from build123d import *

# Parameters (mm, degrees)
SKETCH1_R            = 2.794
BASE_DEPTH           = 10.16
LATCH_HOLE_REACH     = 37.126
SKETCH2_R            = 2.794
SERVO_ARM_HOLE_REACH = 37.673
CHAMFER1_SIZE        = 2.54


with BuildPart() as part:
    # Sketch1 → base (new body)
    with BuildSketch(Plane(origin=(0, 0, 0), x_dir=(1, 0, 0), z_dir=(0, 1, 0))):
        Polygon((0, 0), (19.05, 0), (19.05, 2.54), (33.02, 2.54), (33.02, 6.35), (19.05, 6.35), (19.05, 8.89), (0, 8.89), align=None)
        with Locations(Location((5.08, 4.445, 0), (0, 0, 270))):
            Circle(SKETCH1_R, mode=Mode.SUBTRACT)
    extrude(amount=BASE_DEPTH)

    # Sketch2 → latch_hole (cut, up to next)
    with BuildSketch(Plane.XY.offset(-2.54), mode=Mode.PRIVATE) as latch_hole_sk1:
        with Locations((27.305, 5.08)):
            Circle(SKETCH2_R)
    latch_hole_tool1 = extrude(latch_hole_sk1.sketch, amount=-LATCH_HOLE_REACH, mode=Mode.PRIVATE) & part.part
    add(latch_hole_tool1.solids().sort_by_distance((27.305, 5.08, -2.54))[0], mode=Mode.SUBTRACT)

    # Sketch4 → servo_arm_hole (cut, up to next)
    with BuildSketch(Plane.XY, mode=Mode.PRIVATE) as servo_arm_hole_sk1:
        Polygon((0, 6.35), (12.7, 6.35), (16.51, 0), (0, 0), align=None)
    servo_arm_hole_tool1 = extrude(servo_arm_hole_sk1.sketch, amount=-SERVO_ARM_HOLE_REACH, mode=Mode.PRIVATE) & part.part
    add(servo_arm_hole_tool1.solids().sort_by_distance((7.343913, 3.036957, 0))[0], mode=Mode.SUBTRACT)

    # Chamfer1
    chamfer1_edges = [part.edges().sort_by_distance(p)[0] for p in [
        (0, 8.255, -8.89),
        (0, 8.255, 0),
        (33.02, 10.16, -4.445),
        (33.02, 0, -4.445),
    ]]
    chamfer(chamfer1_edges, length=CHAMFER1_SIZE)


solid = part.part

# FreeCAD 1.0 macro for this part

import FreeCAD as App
import Part
import Sketcher
from FreeCAD import Vector
Q = App.Units.Quantity


def edges_at(feature, points):
    """Names of the edges that pass closest to the given points."""
    edges = feature.Shape.Edges
    near = lambda p: min(range(len(edges)), key=lambda i: edges[i].distToShape(Part.Vertex(*p))[0])
    return sorted({f"Edge{near(p) + 1}" for p in points})

doc = App.newDocument("Part")
params = doc.addObject("Spreadsheet::Sheet", "Params")
for row, (alias, value) in enumerate([
    ("sketch1_diameter", "0.22 in"),
    ("sketch1_height", "0.1 in"),
    ("sketch1_width", "0.75 in"),
    ("sketch1_width2", "0.55 in"),
    ("sketch1_height2", "0.15 in"),
    ("pad1_length", "0.4 in"),
    ("sketch2_diameter", "0.22 in"),
    ("sketch3_width", "0.5 in"),
    ("sketch3_width2", "0.65 in"),
    ("sketch3_height", "0.25 in"),
    ("pocket2_length", "0.35 in"),
    ("chamfer_size", "0.1 in"),
], start=1):
    params.set(f"A{row}", alias)
    params.set(f"B{row}", "=" + value)
    params.setAlias(f"B{row}", alias)

body = doc.addObject("PartDesign::Body", "Body")

# Sketch on XZ plane
sketch1 = body.newObject("Sketcher::SketchObject", "Sketch")
sketch1.AttachmentSupport = (doc.getObject("XZ_Plane"), [""])
sketch1.MapMode = "FlatFace"
sketch1.addGeometry([
    Part.LineSegment(Vector(0, 0, 0), Vector(19.1, 0, 0)),  # 0
    Part.LineSegment(Vector(19.1, 0, 0), Vector(19.1, -2.5, 0)),  # 1
    Part.LineSegment(Vector(19.1, -2.5, 0), Vector(33, -2.5, 0)),  # 2
    Part.LineSegment(Vector(33, -2.5, 0), Vector(33, -6.3, 0)),  # 3
    Part.LineSegment(Vector(33, -6.3, 0), Vector(19.1, -6.3, 0)),  # 4
    Part.LineSegment(Vector(19.1, -6.3, 0), Vector(19.1, -8.9, 0)),  # 5
    Part.LineSegment(Vector(19.1, -8.9, 0), Vector(0, -8.9, 0)),  # 6
    Part.LineSegment(Vector(0, -8.9, 0), Vector(0, 0, 0)),  # 7
    Part.Circle(Vector(5.1, -4.4, 0), Vector(0, 0, 1), 2.8),  # 8
], False)
sketch1.addConstraint([
    Sketcher.Constraint("Coincident", 0, 2, 1, 1),
    Sketcher.Constraint("Coincident", 1, 2, 2, 1),
    Sketcher.Constraint("Coincident", 2, 2, 3, 1),
    Sketcher.Constraint("Coincident", 3, 2, 4, 1),
    Sketcher.Constraint("Coincident", 4, 2, 5, 1),
    Sketcher.Constraint("Coincident", 5, 2, 6, 1),
    Sketcher.Constraint("Coincident", 6, 2, 7, 1),
    Sketcher.Constraint("Coincident", 7, 2, 0, 1),
    Sketcher.Constraint("Horizontal", 0),
    Sketcher.Constraint("Vertical", 1),
    Sketcher.Constraint("Horizontal", 2),
    Sketcher.Constraint("Vertical", 3),
    Sketcher.Constraint("Horizontal", 4),
    Sketcher.Constraint("Vertical", 5),
    Sketcher.Constraint("Horizontal", 6),
    Sketcher.Constraint("Vertical", 7),
    Sketcher.Constraint("Coincident", 7, 2, -1, 1),
    Sketcher.Constraint("Vertical", 1, 2, 4, 2),
    Sketcher.Constraint("Equal", 1, 5),
    Sketcher.Constraint("Diameter", 8, Q("0.22 in")),
    Sketcher.Constraint("DistanceY", 1, 2, 1, 1, Q("0.1 in")),
    Sketcher.Constraint("DistanceX", 0, 1, 0, 2, Q("0.75 in")),
    Sketcher.Constraint("DistanceX", 2, 1, 2, 2, Q("0.55 in")),
    Sketcher.Constraint("DistanceY", 3, 2, 3, 1, Q("0.15 in")),
    Sketcher.Constraint("DistanceX", -1, 1, 8, 3, Q("0.2 in")),
    Sketcher.Constraint("DistanceY", 8, 3, -1, 1, Q("0.175 in")),
])
sketch1.setExpression("Constraints[19]", "Params.sketch1_diameter")
sketch1.setExpression("Constraints[20]", "Params.sketch1_height")
sketch1.setExpression("Constraints[21]", "Params.sketch1_width")
sketch1.setExpression("Constraints[22]", "Params.sketch1_width2")
sketch1.setExpression("Constraints[23]", "Params.sketch1_height2")
pad1 = body.newObject("PartDesign::Pad", "Pad")
pad1.Profile = sketch1
pad1.setExpression("Length", "Params.pad1_length")
pad1.Reversed = True

# Sketch on XY plane
sketch2 = body.newObject("Sketcher::SketchObject", "Sketch001")
sketch2.AttachmentSupport = (doc.getObject("XY_Plane"), [""])
sketch2.MapMode = "FlatFace"
sketch2.AttachmentOffset = App.Placement(Vector(0, 0, -0.1 * 25.4), App.Rotation())
sketch2.addGeometry(Part.Circle(Vector(27.3, 5.1, 0), Vector(0, 0, 1), 2.8), False)
sketch2.addConstraint([
    Sketcher.Constraint("Diameter", 0, Q("0.22 in")),
    Sketcher.Constraint("DistanceY", -1, 1, 0, 3, Q("0.2 in")),
    Sketcher.Constraint("DistanceX", -1, 1, 0, 3, Q("1.075 in")),
])
sketch2.setExpression("Constraints[0]", "Params.sketch2_diameter")
pocket1 = body.newObject("PartDesign::Pocket", "Pocket")
pocket1.Profile = sketch2
pocket1.Type = "UpToFirst"

# Sketch on XY plane
sketch3 = body.newObject("Sketcher::SketchObject", "Sketch002")
sketch3.AttachmentSupport = (doc.getObject("XY_Plane"), [""])
sketch3.MapMode = "FlatFace"
sketch3.addGeometry([
    Part.LineSegment(Vector(13, 6, 0), Vector(0, 6, 0)),
    Part.LineSegment(Vector(0, 6, 0), Vector(0, 0, 0)),
    Part.LineSegment(Vector(0, 0, 0), Vector(17, 0, 0)),
    Part.LineSegment(Vector(17, 0, 0), Vector(13, 6, 0)),
], False)
sketch3.addConstraint([
    Sketcher.Constraint("Coincident", 0, 2, 1, 1),
    Sketcher.Constraint("Coincident", 1, 2, 2, 1),
    Sketcher.Constraint("Coincident", 2, 2, 3, 1),
    Sketcher.Constraint("Coincident", 3, 2, 0, 1),
    Sketcher.Constraint("Horizontal", 0),
    Sketcher.Constraint("Vertical", 1),
    Sketcher.Constraint("Horizontal", 2),
    Sketcher.Constraint("Coincident", 1, 2, -1, 1),
    Sketcher.Constraint("DistanceX", 0, 2, 0, 1, Q("0.5 in")),
    Sketcher.Constraint("DistanceX", 2, 1, 2, 2, Q("0.65 in")),
    Sketcher.Constraint("DistanceY", 1, 2, 1, 1, Q("0.25 in")),
])
sketch3.setExpression("Constraints[8]", "Params.sketch3_width")
sketch3.setExpression("Constraints[9]", "Params.sketch3_width2")
sketch3.setExpression("Constraints[10]", "Params.sketch3_height")
pocket2 = body.newObject("PartDesign::Pocket", "Pocket001")
pocket2.Profile = sketch3
pocket2.setExpression("Length", "Params.pocket2_length")
doc.recompute()

chamfer = body.newObject("PartDesign::Chamfer", "Chamfer")
chamfer.Base = (pocket2, edges_at(pocket2, [
    (0, 8.255, -8.89),
    (0, 8.255, 0),
    (33.02, 10.16, -4.445),
    (33.02, 0, -4.445),
]))
chamfer.setExpression("Size", "Params.chamfer_size")

doc.recompute()
